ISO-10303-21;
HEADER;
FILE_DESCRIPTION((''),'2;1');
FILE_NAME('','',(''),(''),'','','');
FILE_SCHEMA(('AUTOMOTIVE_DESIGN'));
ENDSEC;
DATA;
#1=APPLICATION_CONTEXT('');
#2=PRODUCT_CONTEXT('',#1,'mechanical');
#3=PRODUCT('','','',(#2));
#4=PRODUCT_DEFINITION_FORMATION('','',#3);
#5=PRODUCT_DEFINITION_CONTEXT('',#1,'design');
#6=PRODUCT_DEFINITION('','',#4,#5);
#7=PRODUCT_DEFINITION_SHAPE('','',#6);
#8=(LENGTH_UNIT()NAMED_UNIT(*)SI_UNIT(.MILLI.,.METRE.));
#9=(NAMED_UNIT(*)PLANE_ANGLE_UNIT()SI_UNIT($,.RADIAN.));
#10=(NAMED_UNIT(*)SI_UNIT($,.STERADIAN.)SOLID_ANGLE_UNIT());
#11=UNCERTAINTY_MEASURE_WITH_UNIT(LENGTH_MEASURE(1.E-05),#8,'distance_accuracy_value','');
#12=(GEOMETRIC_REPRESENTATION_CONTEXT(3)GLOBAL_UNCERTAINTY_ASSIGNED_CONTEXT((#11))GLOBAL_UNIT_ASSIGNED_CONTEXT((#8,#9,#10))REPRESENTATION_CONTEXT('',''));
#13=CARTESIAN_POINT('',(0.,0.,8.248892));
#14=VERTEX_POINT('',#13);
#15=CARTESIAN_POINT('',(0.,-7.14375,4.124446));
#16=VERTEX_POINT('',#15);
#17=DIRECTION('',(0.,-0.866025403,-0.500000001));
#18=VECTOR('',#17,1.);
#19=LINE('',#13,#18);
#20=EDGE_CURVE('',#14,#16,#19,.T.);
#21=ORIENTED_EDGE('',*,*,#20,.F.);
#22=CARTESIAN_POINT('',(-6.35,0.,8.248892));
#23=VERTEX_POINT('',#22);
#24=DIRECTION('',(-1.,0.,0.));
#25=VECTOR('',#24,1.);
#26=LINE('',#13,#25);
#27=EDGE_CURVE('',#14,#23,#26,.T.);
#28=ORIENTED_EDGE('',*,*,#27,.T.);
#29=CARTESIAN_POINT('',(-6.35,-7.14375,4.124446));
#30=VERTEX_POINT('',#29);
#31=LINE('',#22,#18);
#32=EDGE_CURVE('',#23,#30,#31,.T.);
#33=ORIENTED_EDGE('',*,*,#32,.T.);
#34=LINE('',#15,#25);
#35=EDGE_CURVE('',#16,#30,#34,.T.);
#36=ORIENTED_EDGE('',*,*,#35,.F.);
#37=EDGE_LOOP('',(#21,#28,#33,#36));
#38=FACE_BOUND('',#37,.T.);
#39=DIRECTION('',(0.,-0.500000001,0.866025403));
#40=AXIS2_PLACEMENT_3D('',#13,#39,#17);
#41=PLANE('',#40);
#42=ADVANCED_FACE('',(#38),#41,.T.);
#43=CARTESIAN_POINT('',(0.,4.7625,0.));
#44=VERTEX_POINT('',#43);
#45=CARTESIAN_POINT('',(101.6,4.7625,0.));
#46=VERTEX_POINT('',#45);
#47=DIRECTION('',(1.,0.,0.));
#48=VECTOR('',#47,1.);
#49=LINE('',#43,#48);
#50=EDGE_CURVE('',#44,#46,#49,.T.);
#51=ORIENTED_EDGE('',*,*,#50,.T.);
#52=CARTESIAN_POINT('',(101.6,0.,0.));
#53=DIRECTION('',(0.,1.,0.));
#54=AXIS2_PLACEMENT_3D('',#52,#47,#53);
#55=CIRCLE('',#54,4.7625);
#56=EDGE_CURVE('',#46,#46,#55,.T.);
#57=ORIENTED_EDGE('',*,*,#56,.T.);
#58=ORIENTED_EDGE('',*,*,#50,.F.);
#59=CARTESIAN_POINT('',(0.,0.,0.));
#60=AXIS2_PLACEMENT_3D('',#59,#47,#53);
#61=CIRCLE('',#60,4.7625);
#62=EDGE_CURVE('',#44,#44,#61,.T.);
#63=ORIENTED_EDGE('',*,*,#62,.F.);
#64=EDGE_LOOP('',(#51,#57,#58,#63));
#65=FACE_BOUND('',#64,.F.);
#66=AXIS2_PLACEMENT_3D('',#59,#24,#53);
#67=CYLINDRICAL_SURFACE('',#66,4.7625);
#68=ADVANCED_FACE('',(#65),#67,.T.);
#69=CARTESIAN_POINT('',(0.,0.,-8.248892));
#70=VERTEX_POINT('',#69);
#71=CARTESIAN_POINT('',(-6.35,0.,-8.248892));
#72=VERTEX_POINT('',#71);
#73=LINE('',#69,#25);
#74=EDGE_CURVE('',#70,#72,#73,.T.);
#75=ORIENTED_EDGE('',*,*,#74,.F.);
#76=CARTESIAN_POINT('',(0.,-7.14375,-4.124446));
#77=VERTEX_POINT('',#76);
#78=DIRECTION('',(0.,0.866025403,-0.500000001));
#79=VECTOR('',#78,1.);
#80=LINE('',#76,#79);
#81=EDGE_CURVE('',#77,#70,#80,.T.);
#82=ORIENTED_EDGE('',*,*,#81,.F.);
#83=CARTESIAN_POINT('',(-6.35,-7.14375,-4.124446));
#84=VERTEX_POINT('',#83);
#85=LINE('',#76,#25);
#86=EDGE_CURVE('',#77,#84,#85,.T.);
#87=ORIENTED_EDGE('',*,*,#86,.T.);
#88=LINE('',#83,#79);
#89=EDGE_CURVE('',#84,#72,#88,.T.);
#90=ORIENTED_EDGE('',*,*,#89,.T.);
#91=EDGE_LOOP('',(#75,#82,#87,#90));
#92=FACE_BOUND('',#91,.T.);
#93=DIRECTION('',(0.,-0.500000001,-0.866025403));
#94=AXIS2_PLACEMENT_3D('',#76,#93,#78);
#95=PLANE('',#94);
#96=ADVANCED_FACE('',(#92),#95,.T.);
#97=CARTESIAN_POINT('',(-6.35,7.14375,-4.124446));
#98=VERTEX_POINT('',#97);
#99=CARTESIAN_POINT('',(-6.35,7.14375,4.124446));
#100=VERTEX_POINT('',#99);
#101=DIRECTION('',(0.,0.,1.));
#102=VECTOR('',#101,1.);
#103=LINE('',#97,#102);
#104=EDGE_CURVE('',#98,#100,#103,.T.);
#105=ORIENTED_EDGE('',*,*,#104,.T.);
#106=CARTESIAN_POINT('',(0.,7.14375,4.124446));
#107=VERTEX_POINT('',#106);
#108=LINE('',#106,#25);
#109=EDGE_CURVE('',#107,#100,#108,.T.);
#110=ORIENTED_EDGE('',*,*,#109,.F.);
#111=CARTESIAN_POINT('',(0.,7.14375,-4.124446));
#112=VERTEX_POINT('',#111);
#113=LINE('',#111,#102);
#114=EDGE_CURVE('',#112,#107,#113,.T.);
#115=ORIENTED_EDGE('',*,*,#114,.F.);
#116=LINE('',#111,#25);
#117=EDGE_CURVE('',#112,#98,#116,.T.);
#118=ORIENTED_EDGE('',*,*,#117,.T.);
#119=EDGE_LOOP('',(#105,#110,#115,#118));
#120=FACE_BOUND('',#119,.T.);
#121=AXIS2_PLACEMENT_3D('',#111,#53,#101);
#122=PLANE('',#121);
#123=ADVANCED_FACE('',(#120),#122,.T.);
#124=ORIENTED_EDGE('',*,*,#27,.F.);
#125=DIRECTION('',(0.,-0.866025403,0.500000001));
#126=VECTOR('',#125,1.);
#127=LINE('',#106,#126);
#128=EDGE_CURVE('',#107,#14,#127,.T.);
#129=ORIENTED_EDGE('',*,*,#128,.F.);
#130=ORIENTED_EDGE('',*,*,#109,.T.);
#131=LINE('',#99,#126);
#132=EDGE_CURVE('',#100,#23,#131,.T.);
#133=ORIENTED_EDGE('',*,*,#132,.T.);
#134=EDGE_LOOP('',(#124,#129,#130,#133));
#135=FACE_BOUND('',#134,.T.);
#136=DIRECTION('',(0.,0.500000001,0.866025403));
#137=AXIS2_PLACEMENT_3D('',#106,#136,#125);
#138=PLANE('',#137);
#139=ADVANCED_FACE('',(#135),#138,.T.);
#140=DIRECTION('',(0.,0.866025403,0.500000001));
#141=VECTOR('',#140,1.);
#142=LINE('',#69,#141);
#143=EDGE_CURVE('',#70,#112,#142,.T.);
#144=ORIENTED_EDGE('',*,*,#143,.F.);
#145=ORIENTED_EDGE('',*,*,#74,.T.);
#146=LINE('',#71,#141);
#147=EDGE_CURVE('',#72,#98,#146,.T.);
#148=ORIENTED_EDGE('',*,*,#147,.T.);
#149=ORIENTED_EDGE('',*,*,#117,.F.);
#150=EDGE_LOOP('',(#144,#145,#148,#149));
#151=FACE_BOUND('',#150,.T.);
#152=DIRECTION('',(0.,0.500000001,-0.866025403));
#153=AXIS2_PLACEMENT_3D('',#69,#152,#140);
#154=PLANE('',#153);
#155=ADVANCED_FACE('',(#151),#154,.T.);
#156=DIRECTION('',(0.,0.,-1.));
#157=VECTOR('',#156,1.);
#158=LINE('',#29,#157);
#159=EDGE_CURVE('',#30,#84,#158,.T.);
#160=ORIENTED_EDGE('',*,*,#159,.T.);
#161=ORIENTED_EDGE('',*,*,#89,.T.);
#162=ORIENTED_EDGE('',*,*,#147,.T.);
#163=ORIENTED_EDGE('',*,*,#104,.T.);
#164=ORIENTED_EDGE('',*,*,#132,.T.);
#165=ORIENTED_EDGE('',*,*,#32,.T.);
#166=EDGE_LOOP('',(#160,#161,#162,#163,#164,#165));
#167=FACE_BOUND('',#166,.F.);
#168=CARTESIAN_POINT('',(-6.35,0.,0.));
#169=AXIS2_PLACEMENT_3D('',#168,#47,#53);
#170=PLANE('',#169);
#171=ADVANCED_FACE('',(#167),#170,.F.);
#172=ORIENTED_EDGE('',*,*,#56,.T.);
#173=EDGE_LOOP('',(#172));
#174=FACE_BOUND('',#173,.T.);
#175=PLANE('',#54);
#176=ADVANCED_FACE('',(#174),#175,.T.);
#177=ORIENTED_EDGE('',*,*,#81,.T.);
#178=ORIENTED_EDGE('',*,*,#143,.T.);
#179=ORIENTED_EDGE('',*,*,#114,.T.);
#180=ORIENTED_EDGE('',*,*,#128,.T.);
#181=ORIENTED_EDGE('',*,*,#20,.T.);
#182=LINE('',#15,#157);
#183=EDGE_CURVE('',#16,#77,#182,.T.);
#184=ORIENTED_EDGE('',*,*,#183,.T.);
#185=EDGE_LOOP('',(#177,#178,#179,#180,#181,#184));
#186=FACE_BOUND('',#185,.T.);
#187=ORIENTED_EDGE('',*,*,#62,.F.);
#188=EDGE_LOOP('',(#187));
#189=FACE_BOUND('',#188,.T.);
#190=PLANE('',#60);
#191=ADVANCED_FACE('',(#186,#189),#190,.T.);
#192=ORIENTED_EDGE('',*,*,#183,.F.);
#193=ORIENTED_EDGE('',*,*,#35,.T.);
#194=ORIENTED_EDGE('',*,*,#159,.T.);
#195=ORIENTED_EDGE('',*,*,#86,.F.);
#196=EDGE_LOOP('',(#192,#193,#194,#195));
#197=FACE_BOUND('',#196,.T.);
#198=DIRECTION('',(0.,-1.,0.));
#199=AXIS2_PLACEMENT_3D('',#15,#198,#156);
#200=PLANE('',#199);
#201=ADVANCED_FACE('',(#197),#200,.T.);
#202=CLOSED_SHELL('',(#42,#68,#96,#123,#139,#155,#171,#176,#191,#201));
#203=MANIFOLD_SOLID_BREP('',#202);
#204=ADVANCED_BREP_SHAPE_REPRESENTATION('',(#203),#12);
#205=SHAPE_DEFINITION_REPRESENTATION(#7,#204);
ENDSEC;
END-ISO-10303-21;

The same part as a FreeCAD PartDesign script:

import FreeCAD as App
import Part
import Sketcher

V = App.Vector
Q = App.Units.Quantity

doc = App.newDocument("Part")
body = doc.addObject("PartDesign::Body", "Body")

# Sketch on YZ plane
sketch1 = doc.addObject("Sketcher::SketchObject", "Sketch")
body.addObject(sketch1)
sketch1.AttachmentSupport = (doc.YZ_Plane, [""])
sketch1.MapMode = "FlatFace"
sketch1.addGeometry(Part.LineSegment(V(7, -4, 0), V(7, 4, 0)), False)
sketch1.addGeometry(Part.LineSegment(V(7, 4, 0), V(0, 8, 0)), False)
sketch1.addGeometry(Part.LineSegment(V(0, 8, 0), V(-7, 4, 0)), False)
sketch1.addGeometry(Part.LineSegment(V(-7, 4, 0), V(-7, -4, 0)), False)
sketch1.addGeometry(Part.LineSegment(V(-7, -4, 0), V(0, -8, 0)), False)
sketch1.addGeometry(Part.LineSegment(V(0, -8, 0), V(7, -4, 0)), False)
sketch1.addConstraint(Sketcher.Constraint("Coincident", 0, 2, 1, 1))
sketch1.addConstraint(Sketcher.Constraint("Coincident", 1, 2, 2, 1))
sketch1.addConstraint(Sketcher.Constraint("Coincident", 2, 2, 3, 1))
sketch1.addConstraint(Sketcher.Constraint("Coincident", 3, 2, 4, 1))
sketch1.addConstraint(Sketcher.Constraint("Coincident", 4, 2, 5, 1))
sketch1.addConstraint(Sketcher.Constraint("Coincident", 5, 2, 0, 1))
sketch1.addConstraint(Sketcher.Constraint("Vertical", 0))
sketch1.addConstraint(Sketcher.Constraint("Vertical", 3))
sketch1.addConstraint(Sketcher.Constraint("Symmetric", 0, 2, 3, 2, -1, 1))
sketch1.addConstraint(Sketcher.Constraint("Symmetric", 1, 2, 4, 2, -1, 1))
sketch1.addConstraint(Sketcher.Constraint("PointOnObject", 1, 2, -2))
sketch1.addConstraint(Sketcher.Constraint("Parallel", 2, 5))
sketch1.addConstraint(Sketcher.Constraint("Horizontal", 0, 2, 2, 2))
sketch1.addConstraint(Sketcher.Constraint("Angle", 1, Q("150 deg")))
sketch1.addConstraint(Sketcher.Constraint("DistanceX", -1, 1, 0, 2, Q("0.28125 in")))
sketch1.addConstraint(Sketcher.Constraint("DistanceY", 0, 1, 0, 2, Q("8.248892 mm")))
pad1 = doc.addObject("PartDesign::Pad", "Pad")
body.addObject(pad1)
pad1.Profile = sketch1
pad1.Length = Q("0.25 in")
pad1.Reversed = True

# Sketch on YZ plane
sketch2 = doc.addObject("Sketcher::SketchObject", "Sketch001")
body.addObject(sketch2)
sketch2.AttachmentSupport = (doc.YZ_Plane, [""])
sketch2.MapMode = "FlatFace"
sketch2.addGeometry(Part.Circle(V(0, 0, 0), V(0, 0, 1), 4.8), False)
sketch2.addConstraint(Sketcher.Constraint("Coincident", 0, 3, -1, 1))
sketch2.addConstraint(Sketcher.Constraint("Diameter", 0, Q("0.375 in")))
pad2 = doc.addObject("PartDesign::Pad", "Pad001")
body.addObject(pad2)
pad2.Profile = sketch2
pad2.Length = Q("4 in")

doc.recompute()
